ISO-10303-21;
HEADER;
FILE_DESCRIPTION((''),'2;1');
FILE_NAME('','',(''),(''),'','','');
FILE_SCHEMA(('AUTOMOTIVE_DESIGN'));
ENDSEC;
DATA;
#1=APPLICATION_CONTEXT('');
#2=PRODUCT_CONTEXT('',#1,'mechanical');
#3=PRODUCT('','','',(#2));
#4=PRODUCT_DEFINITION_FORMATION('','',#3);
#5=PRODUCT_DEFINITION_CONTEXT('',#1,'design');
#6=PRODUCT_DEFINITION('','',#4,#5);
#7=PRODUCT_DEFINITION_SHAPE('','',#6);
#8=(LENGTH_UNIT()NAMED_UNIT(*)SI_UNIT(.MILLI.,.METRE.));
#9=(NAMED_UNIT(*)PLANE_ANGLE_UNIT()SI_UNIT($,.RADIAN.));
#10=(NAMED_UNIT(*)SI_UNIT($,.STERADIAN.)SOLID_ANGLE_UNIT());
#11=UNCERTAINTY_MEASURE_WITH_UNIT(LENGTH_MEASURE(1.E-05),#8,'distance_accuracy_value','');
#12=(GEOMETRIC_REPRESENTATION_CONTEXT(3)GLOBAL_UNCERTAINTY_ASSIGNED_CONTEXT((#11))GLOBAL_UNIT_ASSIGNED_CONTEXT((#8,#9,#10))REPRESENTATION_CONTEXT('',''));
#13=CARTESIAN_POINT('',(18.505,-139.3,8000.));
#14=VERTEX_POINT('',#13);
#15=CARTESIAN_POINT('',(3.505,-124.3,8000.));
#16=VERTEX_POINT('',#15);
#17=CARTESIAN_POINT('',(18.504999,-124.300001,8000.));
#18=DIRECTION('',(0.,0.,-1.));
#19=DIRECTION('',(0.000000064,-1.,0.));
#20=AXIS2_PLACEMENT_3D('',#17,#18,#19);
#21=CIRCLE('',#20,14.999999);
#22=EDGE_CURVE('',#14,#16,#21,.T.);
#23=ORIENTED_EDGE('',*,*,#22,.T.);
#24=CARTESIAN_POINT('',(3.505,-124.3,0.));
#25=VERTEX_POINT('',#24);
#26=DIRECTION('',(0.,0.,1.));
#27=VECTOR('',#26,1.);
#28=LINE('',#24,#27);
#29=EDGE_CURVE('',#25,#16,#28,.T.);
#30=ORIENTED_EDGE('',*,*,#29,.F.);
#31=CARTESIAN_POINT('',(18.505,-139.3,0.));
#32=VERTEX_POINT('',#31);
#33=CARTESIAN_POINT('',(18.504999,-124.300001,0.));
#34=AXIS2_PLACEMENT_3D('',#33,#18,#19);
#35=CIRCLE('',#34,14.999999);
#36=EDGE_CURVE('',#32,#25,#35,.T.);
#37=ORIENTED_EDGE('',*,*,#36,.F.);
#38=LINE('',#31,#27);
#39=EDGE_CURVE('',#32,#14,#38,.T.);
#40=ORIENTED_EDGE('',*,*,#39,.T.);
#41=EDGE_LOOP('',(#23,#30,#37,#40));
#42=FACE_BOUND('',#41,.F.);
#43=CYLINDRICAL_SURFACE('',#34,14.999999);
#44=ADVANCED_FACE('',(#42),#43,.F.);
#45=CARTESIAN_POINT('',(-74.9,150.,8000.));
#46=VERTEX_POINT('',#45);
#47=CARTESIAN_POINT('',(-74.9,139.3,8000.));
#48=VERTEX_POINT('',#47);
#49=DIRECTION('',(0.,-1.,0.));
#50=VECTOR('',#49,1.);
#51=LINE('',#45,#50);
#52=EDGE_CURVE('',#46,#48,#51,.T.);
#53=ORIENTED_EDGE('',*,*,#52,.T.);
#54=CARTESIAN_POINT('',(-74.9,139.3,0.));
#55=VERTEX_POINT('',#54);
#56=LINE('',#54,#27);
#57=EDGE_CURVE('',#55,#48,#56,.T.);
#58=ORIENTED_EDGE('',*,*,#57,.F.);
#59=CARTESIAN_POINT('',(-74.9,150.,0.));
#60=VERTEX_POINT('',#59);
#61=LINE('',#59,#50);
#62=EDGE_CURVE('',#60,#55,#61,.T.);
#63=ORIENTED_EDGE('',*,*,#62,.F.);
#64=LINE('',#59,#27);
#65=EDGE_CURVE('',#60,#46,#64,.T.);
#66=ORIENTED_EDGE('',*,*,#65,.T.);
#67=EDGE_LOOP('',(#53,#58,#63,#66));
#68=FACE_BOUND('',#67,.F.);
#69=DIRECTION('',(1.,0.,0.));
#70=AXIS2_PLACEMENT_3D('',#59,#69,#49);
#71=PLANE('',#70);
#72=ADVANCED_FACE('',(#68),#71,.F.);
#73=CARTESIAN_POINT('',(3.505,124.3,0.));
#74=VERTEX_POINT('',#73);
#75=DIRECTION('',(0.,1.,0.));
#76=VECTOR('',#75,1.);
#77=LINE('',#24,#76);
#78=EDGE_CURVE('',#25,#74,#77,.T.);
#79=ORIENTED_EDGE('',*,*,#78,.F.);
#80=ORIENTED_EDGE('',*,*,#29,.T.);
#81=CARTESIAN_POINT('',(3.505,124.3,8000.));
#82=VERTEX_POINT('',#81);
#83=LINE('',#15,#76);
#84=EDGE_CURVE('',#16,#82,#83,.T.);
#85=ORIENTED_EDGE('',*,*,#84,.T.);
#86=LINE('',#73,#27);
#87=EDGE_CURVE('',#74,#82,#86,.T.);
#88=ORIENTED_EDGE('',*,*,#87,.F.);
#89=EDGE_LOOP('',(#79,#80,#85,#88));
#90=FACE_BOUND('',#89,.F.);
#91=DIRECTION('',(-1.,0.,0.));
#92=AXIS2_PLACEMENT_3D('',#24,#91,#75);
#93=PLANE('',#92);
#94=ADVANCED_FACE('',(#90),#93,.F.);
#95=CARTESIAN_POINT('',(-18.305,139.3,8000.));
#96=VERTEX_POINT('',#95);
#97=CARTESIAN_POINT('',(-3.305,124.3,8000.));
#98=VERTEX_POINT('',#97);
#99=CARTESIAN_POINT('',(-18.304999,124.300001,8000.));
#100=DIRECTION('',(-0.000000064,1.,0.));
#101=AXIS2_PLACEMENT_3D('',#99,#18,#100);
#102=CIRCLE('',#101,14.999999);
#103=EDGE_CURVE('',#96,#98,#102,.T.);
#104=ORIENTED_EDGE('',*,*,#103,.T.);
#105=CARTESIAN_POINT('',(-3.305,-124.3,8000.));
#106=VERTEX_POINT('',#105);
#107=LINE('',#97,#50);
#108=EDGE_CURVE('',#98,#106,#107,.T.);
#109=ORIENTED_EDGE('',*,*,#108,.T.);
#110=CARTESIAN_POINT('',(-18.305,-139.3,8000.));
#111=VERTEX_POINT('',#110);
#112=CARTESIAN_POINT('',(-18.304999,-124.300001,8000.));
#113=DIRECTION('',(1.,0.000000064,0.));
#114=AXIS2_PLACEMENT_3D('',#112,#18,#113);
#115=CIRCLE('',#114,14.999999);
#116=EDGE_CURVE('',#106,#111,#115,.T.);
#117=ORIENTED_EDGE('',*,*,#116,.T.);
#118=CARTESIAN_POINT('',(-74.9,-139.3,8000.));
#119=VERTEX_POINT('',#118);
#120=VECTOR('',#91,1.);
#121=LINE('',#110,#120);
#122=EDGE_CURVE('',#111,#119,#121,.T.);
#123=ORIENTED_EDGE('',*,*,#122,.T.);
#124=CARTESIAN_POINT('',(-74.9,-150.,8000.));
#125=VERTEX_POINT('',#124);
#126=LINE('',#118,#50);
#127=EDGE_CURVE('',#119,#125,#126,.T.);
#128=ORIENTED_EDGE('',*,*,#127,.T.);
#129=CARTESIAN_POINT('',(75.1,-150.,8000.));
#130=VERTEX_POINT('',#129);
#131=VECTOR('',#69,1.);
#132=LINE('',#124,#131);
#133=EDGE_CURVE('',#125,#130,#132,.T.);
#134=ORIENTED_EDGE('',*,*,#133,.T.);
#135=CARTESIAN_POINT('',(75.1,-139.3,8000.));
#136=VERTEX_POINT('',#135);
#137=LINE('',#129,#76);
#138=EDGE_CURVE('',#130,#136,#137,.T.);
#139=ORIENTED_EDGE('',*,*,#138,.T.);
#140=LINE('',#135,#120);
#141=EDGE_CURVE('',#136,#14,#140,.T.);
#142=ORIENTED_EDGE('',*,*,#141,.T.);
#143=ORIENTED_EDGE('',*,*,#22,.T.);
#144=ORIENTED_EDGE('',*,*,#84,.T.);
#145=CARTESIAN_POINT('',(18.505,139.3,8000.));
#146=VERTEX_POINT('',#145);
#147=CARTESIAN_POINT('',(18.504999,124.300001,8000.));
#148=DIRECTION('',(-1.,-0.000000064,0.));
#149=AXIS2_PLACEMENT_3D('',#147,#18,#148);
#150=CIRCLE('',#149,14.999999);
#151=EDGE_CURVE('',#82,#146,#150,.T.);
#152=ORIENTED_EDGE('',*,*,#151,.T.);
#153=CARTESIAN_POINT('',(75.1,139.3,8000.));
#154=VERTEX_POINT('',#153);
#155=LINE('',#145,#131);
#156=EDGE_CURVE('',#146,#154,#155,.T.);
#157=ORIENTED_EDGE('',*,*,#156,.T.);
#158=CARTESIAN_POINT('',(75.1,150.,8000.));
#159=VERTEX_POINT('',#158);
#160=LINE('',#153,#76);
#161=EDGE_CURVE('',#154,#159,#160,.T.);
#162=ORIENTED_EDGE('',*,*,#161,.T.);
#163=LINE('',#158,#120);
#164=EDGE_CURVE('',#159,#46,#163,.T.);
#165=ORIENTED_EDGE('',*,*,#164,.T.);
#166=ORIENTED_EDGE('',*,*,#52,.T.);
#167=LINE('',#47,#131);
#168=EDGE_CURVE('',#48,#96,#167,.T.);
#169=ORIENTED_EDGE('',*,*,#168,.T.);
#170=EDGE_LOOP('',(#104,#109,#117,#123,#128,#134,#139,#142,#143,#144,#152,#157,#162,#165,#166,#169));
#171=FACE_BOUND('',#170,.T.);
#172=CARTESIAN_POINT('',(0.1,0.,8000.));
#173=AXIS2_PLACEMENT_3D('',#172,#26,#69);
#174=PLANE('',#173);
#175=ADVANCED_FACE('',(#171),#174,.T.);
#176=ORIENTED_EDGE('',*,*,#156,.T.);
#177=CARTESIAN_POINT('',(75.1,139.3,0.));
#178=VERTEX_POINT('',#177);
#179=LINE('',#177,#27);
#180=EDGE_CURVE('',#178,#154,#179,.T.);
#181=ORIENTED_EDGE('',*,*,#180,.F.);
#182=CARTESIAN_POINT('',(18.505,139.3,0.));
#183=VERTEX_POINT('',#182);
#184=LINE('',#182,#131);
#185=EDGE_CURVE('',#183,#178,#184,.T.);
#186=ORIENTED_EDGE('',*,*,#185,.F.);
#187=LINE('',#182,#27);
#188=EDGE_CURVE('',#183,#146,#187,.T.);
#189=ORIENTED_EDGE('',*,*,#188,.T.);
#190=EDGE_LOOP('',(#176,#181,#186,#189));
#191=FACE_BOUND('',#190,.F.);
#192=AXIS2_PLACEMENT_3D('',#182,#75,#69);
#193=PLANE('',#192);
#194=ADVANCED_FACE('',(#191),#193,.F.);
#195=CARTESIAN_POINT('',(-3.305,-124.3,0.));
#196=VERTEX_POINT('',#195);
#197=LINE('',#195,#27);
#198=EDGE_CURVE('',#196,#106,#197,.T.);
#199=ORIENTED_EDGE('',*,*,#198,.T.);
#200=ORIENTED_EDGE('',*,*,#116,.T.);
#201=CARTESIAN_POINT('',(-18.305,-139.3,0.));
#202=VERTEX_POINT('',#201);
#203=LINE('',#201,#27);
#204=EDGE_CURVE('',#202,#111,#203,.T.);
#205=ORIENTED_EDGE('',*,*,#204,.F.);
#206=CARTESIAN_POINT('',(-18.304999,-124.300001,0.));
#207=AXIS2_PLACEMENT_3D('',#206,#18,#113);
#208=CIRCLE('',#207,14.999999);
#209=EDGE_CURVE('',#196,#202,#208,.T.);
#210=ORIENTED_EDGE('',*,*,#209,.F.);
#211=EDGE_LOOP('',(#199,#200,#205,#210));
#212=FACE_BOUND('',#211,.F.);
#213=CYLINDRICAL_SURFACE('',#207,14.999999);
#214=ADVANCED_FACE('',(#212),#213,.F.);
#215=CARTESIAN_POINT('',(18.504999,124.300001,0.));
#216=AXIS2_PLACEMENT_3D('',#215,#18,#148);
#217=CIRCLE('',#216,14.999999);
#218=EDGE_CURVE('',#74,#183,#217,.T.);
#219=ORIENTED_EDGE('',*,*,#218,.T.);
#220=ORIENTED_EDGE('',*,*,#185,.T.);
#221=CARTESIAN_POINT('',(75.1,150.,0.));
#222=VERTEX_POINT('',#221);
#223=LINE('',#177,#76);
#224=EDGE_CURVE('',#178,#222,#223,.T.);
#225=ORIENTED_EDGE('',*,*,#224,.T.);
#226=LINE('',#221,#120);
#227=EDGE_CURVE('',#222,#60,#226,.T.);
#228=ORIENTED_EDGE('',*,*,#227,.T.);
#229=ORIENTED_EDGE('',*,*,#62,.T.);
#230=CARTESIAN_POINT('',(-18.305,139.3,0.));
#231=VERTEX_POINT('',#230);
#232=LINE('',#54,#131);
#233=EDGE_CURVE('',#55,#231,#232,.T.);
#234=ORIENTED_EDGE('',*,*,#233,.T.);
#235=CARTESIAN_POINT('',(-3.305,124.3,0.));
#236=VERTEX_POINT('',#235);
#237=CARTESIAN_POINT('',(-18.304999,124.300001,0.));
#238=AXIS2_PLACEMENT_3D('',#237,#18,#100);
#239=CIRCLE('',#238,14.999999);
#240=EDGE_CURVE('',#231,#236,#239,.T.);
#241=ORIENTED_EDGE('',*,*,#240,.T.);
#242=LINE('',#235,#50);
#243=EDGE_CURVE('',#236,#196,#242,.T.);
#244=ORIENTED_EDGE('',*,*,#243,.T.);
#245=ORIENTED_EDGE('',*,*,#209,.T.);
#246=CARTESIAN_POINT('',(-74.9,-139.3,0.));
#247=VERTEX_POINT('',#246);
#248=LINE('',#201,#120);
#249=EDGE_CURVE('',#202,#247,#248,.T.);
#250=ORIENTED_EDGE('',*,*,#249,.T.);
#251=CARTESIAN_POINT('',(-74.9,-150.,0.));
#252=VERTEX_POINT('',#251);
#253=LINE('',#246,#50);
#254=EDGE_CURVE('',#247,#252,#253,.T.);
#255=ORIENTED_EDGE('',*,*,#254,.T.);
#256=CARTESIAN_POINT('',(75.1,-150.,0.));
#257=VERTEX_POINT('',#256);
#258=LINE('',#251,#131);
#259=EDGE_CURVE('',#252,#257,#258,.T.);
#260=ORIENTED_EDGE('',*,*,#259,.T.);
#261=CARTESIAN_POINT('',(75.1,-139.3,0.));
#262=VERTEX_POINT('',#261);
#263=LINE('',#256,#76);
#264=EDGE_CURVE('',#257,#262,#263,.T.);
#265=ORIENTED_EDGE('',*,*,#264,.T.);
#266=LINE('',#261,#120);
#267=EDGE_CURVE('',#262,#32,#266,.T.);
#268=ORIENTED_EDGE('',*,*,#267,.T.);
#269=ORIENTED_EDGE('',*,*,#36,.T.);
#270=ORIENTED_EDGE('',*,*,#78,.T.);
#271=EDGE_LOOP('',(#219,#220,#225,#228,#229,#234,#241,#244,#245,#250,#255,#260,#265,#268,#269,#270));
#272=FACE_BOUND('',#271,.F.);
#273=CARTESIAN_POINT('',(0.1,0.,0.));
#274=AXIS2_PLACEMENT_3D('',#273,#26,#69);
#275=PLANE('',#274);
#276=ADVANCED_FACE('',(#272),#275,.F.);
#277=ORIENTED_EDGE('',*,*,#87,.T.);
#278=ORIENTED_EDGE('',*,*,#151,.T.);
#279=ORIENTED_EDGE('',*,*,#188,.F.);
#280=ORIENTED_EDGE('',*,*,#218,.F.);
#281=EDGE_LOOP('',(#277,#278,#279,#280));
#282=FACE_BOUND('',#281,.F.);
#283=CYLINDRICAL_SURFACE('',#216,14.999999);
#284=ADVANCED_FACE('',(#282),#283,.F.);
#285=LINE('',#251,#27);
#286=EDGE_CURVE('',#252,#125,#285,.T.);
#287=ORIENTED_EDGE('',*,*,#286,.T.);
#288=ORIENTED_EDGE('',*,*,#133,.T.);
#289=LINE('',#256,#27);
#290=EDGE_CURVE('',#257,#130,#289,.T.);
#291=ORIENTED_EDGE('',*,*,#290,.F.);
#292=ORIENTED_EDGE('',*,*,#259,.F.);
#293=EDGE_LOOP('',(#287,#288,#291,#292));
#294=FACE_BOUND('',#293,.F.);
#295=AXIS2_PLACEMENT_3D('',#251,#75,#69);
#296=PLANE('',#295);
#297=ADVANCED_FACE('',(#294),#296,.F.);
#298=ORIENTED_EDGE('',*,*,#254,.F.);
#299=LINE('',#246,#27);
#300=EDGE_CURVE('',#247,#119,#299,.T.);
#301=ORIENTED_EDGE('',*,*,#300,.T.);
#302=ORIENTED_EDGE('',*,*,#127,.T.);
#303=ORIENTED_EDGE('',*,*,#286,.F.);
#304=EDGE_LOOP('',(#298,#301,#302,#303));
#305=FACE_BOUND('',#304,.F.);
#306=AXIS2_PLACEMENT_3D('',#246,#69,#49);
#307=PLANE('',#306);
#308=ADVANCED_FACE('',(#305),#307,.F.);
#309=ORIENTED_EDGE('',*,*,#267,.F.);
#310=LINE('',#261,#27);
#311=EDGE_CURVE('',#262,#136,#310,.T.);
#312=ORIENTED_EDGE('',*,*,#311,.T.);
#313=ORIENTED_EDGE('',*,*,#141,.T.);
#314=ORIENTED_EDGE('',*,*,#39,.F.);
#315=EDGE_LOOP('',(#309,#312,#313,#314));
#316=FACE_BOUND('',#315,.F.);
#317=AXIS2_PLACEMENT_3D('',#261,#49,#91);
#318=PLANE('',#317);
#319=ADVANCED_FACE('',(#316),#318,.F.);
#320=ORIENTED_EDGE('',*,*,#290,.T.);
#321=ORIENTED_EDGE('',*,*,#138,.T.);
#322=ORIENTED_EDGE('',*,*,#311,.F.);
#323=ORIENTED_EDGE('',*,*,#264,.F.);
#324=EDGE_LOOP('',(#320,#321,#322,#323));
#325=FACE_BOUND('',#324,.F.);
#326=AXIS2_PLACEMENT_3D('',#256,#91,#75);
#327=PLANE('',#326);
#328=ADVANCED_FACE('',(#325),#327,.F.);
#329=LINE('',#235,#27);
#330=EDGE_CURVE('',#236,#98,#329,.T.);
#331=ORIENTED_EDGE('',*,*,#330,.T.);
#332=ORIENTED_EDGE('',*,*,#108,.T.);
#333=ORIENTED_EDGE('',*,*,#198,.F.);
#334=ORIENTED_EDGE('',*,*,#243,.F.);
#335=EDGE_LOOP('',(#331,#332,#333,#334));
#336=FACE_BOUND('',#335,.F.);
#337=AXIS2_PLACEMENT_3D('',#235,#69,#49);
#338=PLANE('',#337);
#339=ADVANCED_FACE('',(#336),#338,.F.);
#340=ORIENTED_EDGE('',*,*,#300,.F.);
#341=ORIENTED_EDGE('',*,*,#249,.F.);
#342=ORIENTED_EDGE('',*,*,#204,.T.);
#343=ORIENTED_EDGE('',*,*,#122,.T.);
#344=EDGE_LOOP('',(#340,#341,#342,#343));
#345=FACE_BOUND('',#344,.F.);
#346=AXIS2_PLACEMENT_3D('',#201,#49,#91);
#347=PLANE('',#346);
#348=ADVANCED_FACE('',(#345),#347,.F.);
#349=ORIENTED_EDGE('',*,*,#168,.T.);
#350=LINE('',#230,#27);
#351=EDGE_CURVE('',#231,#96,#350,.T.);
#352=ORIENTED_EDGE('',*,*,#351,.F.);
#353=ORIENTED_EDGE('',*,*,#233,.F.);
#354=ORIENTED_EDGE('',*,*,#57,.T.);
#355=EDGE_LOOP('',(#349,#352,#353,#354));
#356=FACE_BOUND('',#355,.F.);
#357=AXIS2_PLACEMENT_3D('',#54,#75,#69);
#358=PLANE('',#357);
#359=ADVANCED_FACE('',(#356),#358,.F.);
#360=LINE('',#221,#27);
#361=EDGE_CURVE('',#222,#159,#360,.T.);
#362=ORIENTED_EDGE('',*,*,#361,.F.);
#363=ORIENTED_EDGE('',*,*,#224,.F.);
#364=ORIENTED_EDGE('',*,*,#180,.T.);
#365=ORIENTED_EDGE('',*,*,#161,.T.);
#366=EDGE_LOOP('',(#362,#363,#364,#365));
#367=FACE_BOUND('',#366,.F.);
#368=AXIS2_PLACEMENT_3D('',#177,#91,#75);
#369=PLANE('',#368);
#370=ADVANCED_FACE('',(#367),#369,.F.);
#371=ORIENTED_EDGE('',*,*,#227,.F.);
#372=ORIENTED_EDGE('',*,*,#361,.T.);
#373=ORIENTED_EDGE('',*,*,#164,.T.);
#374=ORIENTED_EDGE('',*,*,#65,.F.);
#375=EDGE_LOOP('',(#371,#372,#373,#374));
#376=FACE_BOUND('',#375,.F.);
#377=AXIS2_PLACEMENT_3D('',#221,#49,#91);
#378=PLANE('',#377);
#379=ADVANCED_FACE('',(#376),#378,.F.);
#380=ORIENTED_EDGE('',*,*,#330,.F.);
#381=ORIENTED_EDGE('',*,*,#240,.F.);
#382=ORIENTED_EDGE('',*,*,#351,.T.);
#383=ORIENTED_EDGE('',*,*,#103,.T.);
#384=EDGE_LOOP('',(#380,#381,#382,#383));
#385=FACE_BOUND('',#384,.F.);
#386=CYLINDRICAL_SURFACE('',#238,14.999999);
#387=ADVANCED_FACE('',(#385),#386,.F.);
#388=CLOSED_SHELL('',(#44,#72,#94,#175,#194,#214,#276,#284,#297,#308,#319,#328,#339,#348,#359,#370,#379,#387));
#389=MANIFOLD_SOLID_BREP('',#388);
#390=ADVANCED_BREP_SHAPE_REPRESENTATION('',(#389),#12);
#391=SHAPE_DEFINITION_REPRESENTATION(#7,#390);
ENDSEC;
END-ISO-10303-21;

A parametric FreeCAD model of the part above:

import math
import FreeCAD as App
import Part
import Sketcher

V = App.Vector

doc = App.newDocument("Part")
body = doc.addObject("PartDesign::Body", "Body")

# Sketch on XY plane
sketch1 = body.newObject("Sketcher::SketchObject", "Sketch")
sketch1.AttachmentSupport = (doc.getObject("XY_Plane"), [""])
sketch1.MapMode = "FlatFace"
sketch1.addGeometry(Part.LineSegment(V(4, -124, 0), V(4, 124, 0)), False)
sketch1.addGeometry(Part.ArcOfCircle(Part.Circle(V(19, 124, 0), V(0, 0, 1), 15), math.radians(90), math.radians(180)), False)
sketch1.addGeometry(Part.LineSegment(V(19, 139, 0), V(75, 139, 0)), False)
sketch1.addGeometry(Part.LineSegment(V(75, 139, 0), V(75, 150, 0)), False)
sketch1.addGeometry(Part.LineSegment(V(75, 150, 0), V(-75, 150, 0)), False)
sketch1.addGeometry(Part.LineSegment(V(-75, 150, 0), V(-75, 139, 0)), False)
sketch1.addGeometry(Part.LineSegment(V(-75, 139, 0), V(-18, 139, 0)), False)
sketch1.addGeometry(Part.ArcOfCircle(Part.Circle(V(-18, 124, 0), V(0, 0, 1), 15), math.radians(0), math.radians(90)), False)
sketch1.addGeometry(Part.LineSegment(V(-3, 124, 0), V(-3, -124, 0)), False)
sketch1.addGeometry(Part.ArcOfCircle(Part.Circle(V(-18, -124, 0), V(0, 0, 1), 15), math.radians(-90), math.radians(0)), False)
sketch1.addGeometry(Part.LineSegment(V(-18, -139, 0), V(-75, -139, 0)), False)
sketch1.addGeometry(Part.LineSegment(V(-75, -139, 0), V(-75, -150, 0)), False)
sketch1.addGeometry(Part.LineSegment(V(-75, -150, 0), V(75, -150, 0)), False)
sketch1.addGeometry(Part.LineSegment(V(75, -150, 0), V(75, -139, 0)), False)
sketch1.addGeometry(Part.LineSegment(V(75, -139, 0), V(19, -139, 0)), False)
sketch1.addGeometry(Part.ArcOfCircle(Part.Circle(V(19, -124, 0), V(0, 0, 1), 15), math.radians(180), math.radians(270)), False)
sketch1.addConstraint(Sketcher.Constraint("Tangent", 0, 2, 1, 2))
sketch1.addConstraint(Sketcher.Constraint("Tangent", 1, 1, 2, 1))
sketch1.addConstraint(Sketcher.Constraint("Coincident", 2, 2, 3, 1))
sketch1.addConstraint(Sketcher.Constraint("Coincident", 3, 2, 4, 1))
sketch1.addConstraint(Sketcher.Constraint("Coincident", 4, 2, 5, 1))
sketch1.addConstraint(Sketcher.Constraint("Coincident", 5, 2, 6, 1))
sketch1.addConstraint(Sketcher.Constraint("Tangent", 6, 2, 7, 2))
sketch1.addConstraint(Sketcher.Constraint("Tangent", 7, 1, 8, 1))
sketch1.addConstraint(Sketcher.Constraint("Tangent", 8, 2, 9, 2))
sketch1.addConstraint(Sketcher.Constraint("Tangent", 9, 1, 10, 1))
sketch1.addConstraint(Sketcher.Constraint("Coincident", 10, 2, 11, 1))
sketch1.addConstraint(Sketcher.Constraint("Coincident", 11, 2, 12, 1))
sketch1.addConstraint(Sketcher.Constraint("Coincident", 12, 2, 13, 1))
sketch1.addConstraint(Sketcher.Constraint("Coincident", 13, 2, 14, 1))
sketch1.addConstraint(Sketcher.Constraint("Tangent", 14, 2, 15, 2))
sketch1.addConstraint(Sketcher.Constraint("Tangent", 15, 1, 0, 1))
sketch1.addConstraint(Sketcher.Constraint("Vertical", 0))
sketch1.addConstraint(Sketcher.Constraint("Horizontal", 2))
sketch1.addConstraint(Sketcher.Constraint("Vertical", 3))
sketch1.addConstraint(Sketcher.Constraint("Horizontal", 4))
sketch1.addConstraint(Sketcher.Constraint("Vertical", 5))
sketch1.addConstraint(Sketcher.Constraint("Horizontal", 6))
sketch1.addConstraint(Sketcher.Constraint("Vertical", 8))
sketch1.addConstraint(Sketcher.Constraint("Horizontal", 10))
sketch1.addConstraint(Sketcher.Constraint("Vertical", 11))
sketch1.addConstraint(Sketcher.Constraint("Horizontal", 12))
sketch1.addConstraint(Sketcher.Constraint("Vertical", 13))
sketch1.addConstraint(Sketcher.Constraint("Horizontal", 14))
sketch1.addConstraint(Sketcher.Constraint("Equal", 1, 7))
sketch1.addConstraint(Sketcher.Constraint("Equal", 7, 9))
sketch1.addConstraint(Sketcher.Constraint("Equal", 9, 15))
sketch1.addConstraint(Sketcher.Constraint("Symmetric", 5, 2, 10, 2, -1))
sketch1.addConstraint(Sketcher.Constraint("Symmetric", 3, 2, 12, 2, -1))
sketch1.addConstraint(Sketcher.Constraint("Horizontal", 1, 3, 7, 3))
sketch1.addConstraint(Sketcher.Constraint("Horizontal", 9, 3, 15, 3))
sketch1.addConstraint(Sketcher.Constraint("Equal", 2, 6))
sketch1.addConstraint(Sketcher.Constraint("Radius", 1, 14.999999))
sketch1.addConstraint(Sketcher.Constraint("DistanceX", 4, 2, 4, 1, 150.0))
sketch1.addConstraint(Sketcher.Constraint("DistanceY", 0, 1, 0, 2, 248.6))
sketch1.addConstraint(Sketcher.Constraint("DistanceY", 3, 1, 3, 2, 10.7))
sketch1.addConstraint(Sketcher.Constraint("DistanceX", -1, 1, 2, 2, 75.1))
sketch1.addConstraint(Sketcher.Constraint("DistanceX", 2, 1, 2, 2, 56.595))
pad1 = body.newObject("PartDesign::Pad", "Pad")
pad1.Profile = sketch1
pad1.Length = 8000

doc.recompute()
